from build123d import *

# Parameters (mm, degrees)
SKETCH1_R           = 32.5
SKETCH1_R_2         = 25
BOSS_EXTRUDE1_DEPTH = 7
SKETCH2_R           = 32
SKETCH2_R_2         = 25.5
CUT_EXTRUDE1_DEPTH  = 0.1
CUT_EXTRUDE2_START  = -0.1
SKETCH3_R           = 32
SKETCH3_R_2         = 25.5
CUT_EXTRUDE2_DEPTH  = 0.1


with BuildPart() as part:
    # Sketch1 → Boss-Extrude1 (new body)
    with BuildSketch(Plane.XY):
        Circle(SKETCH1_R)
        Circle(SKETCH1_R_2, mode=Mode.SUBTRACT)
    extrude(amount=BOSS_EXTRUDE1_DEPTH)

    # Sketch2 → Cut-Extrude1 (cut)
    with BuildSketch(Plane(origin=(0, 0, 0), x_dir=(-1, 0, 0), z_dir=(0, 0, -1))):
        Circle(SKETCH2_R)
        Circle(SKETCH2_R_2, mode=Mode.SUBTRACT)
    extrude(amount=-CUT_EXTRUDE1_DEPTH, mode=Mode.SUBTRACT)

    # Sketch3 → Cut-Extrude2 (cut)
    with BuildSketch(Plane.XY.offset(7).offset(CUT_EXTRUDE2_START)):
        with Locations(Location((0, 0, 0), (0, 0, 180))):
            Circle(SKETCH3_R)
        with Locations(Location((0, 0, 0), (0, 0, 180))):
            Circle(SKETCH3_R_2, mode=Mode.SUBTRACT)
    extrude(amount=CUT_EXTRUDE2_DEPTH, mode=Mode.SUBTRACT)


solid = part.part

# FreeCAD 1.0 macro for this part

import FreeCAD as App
import Part
import Sketcher

V = App.Vector
Q = App.Units.Quantity

doc = App.newDocument("Part")
body = doc.addObject("PartDesign::Body", "Body")

# Sketch on XY plane
sketch1 = body.newObject("Sketcher::SketchObject", "Sketch")
sketch1.AttachmentSupport = (doc.getObject("XY_Plane"), [""])
sketch1.MapMode = "FlatFace"
sketch1.addGeometry([
    Part.Circle(V(0, 0, 0), V(0, 0, 1), 32.5),
    Part.Circle(V(0, 0, 0), V(0, 0, 1), 25),
], False)
sketch1.addConstraint([
    Sketcher.Constraint("Coincident", 0, 3, -1, 1),
    Sketcher.Constraint("Coincident", 1, 3, -1, 1),
    Sketcher.Constraint("Diameter", 0, Q("65 mm")),
    Sketcher.Constraint("Diameter", 1, Q("50 mm")),
])
pad1 = body.newObject("PartDesign::Pad", "Pad")
pad1.Profile = sketch1
pad1.Length = 7

# Sketch on XY plane
sketch2 = body.newObject("Sketcher::SketchObject", "Sketch001")
sketch2.AttachmentSupport = (doc.getObject("XY_Plane"), [""])
sketch2.MapMode = "FlatFace"
sketch2.addGeometry([
    Part.Circle(V(0, 0, 0), V(0, 0, 1), 32),
    Part.Circle(V(0, 0, 0), V(0, 0, 1), 25.5),
], False)
sketch2.addConstraint([
    Sketcher.Constraint("Coincident", 0, 3, -1, 1),
    Sketcher.Constraint("Coincident", 1, 3, -1, 1),
    Sketcher.Constraint("Diameter", 0, Q("64 mm")),
    Sketcher.Constraint("Diameter", 1, Q("51 mm")),
])
pocket1 = body.newObject("PartDesign::Pocket", "Pocket")
pocket1.Profile = sketch2
pocket1.Length = 0.1
pocket1.Reversed = True

# Sketch on XY plane
sketch3 = body.newObject("Sketcher::SketchObject", "Sketch002")
sketch3.AttachmentSupport = (doc.getObject("XY_Plane"), [""])
sketch3.MapMode = "FlatFace"
sketch3.AttachmentOffset = App.Placement(V(0, 0, 6.9), App.Rotation())
sketch3.addGeometry([
    Part.Circle(V(0, 0, 0), V(0, 0, 1), 32),
    Part.Circle(V(0, 0, 0), V(0, 0, 1), 25.5),
], False)
sketch3.addConstraint([
    Sketcher.Constraint("Coincident", 0, 3, -1, 1),
    Sketcher.Constraint("Coincident", 1, 3, -1, 1),
    Sketcher.Constraint("Diameter", 0, Q("64 mm")),
    Sketcher.Constraint("Diameter", 1, Q("51 mm")),
])
pocket2 = body.newObject("PartDesign::Pocket", "Pocket001")
pocket2.Profile = sketch3
pocket2.Length = 0.1
pocket2.Reversed = True

doc.recompute()
